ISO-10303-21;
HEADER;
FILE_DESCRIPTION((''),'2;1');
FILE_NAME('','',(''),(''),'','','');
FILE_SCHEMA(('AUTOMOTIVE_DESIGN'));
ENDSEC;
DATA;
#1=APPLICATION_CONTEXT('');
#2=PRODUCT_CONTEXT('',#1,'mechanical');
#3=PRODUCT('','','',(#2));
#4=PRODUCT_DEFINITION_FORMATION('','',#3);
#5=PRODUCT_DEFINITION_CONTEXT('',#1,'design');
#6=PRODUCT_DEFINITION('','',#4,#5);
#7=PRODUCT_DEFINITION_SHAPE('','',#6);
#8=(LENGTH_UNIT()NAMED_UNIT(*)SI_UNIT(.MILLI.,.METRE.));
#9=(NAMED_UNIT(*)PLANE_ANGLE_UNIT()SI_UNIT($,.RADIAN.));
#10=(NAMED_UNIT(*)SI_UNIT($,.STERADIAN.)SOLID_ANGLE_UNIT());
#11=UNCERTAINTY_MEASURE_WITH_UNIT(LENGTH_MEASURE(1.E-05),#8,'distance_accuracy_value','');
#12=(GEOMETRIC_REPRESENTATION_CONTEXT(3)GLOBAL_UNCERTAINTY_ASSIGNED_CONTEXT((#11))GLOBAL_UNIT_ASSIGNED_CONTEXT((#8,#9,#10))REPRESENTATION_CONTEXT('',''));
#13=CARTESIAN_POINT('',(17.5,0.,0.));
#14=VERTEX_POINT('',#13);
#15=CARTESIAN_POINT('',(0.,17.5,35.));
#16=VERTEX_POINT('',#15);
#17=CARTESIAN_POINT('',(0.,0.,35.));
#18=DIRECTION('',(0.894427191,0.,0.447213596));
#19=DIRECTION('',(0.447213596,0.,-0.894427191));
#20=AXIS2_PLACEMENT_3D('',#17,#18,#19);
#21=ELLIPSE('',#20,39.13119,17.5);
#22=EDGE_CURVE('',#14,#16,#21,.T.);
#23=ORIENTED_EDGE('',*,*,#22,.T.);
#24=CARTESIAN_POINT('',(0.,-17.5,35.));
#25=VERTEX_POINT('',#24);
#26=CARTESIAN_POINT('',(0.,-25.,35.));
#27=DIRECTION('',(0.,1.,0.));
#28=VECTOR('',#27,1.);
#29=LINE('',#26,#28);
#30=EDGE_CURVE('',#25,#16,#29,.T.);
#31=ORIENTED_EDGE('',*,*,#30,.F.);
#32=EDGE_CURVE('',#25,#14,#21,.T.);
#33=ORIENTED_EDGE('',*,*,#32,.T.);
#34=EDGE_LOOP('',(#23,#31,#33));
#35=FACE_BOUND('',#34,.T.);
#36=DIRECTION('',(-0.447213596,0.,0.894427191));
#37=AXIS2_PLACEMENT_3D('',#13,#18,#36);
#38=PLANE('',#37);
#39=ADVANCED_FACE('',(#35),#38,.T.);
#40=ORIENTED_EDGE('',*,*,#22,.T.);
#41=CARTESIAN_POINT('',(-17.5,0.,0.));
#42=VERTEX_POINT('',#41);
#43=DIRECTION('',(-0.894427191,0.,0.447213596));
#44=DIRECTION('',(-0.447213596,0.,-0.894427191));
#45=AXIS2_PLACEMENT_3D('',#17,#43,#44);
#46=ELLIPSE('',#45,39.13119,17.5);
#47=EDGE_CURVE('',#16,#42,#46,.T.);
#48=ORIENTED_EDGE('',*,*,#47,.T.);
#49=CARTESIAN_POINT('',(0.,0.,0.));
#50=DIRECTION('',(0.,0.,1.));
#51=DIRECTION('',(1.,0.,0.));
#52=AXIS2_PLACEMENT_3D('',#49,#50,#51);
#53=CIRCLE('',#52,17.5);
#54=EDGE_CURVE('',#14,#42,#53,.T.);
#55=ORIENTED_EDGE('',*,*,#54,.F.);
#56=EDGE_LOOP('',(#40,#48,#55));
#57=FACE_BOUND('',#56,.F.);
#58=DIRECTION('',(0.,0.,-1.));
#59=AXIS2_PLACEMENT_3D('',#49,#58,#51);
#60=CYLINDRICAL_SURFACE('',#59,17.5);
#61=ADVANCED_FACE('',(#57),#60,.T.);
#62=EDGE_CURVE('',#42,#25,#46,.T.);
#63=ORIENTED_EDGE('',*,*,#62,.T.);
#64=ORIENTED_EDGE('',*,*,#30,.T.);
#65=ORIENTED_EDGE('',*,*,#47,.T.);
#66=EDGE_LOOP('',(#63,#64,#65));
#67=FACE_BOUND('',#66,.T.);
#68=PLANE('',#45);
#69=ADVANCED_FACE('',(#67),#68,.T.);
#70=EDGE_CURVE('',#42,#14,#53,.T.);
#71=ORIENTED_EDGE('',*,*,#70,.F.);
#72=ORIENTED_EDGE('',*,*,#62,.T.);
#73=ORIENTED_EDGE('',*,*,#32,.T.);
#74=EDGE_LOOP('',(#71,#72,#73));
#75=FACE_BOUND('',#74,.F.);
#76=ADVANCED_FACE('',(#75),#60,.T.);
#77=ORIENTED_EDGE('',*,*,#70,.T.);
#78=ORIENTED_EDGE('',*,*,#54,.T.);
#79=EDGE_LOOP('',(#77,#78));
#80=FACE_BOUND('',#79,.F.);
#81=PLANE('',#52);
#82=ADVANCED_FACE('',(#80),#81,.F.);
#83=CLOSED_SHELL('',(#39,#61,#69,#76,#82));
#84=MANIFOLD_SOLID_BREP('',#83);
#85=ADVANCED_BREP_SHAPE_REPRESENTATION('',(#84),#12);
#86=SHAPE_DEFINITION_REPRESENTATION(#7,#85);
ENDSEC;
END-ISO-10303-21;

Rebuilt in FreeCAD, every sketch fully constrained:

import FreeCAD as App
import Part
import Sketcher


def add_polygon(sketch, points):
    """Adds a closed chain of lines whose ends are joined by coincident constraints."""
    first, n = sketch.GeometryCount, len(points)
    for a, b in zip(points, points[1:] + points[:1]):
        sketch.addGeometry(Part.LineSegment(App.Vector(*a, 0), App.Vector(*b, 0)), False)
    for i in range(n):
        sketch.addConstraint(Sketcher.Constraint("Coincident", first + i, 2, first + (i + 1) % n, 1))

doc = App.newDocument("Part")
params = doc.addObject("Spreadsheet::Sheet", "Params")
for row, (alias, value) in enumerate([
    ("sketch1_diameter", "35 mm"),
    ("pad1_length", "35 mm"),
    ("sketch2_width", "35 mm"),
    ("pad2_length", "50 mm"),
], start=1):
    params.set(f"A{row}", alias)
    params.set(f"B{row}", "=" + value)
    params.setAlias(f"B{row}", alias)

body = doc.addObject("PartDesign::Body", "Body")

sketch1 = body.newObject("Sketcher::SketchObject", "Sketch")
sketch1.AttachmentSupport = (doc.getObject("XY_Plane"), [""])
sketch1.MapMode = "FlatFace"
sketch1.addGeometry(Part.Circle(App.Vector(0, 0, 0), App.Vector(0, 0, 1), 18), False)
sketch1.addConstraint(Sketcher.Constraint("Coincident", 0, 3, -1, 1))
sketch1.addConstraint(Sketcher.Constraint("Diameter", 0, 35.0))
sketch1.setExpression("Constraints[1]", "Params.sketch1_diameter")
pad1 = body.newObject("PartDesign::Pad", "Pad")
pad1.Profile = sketch1
pad1.setExpression("Length", "Params.pad1_length")
body2 = doc.addObject("PartDesign::Body", "Body001")

sketch2 = body2.newObject("Sketcher::SketchObject", "Sketch001")
sketch2.AttachmentSupport = (doc.getObject("XZ_Plane001"), [""])
sketch2.MapMode = "FlatFace"
add_polygon(sketch2, [(0, 35), (-18, 0), (18, 0)])
sketch2.addConstraint(Sketcher.Constraint("Horizontal", 1))
sketch2.addConstraint(Sketcher.Constraint("Symmetric", 0, 2, 1, 2, -1, 1))
sketch2.addConstraint(Sketcher.Constraint("PointOnObject", 2, 2, -2))
sketch2.addConstraint(Sketcher.Constraint("DistanceX", 1, 1, 1, 2, 35.0))
sketch2.addConstraint(Sketcher.Constraint("DistanceY", -1, 1, 2, 2, 35.0))
sketch2.setExpression("Constraints[6]", "Params.sketch2_width")
pad2 = body2.newObject("PartDesign::Pad", "Pad001")
pad2.Profile = sketch2
pad2.setExpression("Length", "Params.pad2_length")
pad2.Midplane = True
doc.recompute()

boolean = body.newObject("PartDesign::Boolean", "Boolean")
boolean.Type = "Common"
boolean.addObjects([body2])

doc.recompute()
